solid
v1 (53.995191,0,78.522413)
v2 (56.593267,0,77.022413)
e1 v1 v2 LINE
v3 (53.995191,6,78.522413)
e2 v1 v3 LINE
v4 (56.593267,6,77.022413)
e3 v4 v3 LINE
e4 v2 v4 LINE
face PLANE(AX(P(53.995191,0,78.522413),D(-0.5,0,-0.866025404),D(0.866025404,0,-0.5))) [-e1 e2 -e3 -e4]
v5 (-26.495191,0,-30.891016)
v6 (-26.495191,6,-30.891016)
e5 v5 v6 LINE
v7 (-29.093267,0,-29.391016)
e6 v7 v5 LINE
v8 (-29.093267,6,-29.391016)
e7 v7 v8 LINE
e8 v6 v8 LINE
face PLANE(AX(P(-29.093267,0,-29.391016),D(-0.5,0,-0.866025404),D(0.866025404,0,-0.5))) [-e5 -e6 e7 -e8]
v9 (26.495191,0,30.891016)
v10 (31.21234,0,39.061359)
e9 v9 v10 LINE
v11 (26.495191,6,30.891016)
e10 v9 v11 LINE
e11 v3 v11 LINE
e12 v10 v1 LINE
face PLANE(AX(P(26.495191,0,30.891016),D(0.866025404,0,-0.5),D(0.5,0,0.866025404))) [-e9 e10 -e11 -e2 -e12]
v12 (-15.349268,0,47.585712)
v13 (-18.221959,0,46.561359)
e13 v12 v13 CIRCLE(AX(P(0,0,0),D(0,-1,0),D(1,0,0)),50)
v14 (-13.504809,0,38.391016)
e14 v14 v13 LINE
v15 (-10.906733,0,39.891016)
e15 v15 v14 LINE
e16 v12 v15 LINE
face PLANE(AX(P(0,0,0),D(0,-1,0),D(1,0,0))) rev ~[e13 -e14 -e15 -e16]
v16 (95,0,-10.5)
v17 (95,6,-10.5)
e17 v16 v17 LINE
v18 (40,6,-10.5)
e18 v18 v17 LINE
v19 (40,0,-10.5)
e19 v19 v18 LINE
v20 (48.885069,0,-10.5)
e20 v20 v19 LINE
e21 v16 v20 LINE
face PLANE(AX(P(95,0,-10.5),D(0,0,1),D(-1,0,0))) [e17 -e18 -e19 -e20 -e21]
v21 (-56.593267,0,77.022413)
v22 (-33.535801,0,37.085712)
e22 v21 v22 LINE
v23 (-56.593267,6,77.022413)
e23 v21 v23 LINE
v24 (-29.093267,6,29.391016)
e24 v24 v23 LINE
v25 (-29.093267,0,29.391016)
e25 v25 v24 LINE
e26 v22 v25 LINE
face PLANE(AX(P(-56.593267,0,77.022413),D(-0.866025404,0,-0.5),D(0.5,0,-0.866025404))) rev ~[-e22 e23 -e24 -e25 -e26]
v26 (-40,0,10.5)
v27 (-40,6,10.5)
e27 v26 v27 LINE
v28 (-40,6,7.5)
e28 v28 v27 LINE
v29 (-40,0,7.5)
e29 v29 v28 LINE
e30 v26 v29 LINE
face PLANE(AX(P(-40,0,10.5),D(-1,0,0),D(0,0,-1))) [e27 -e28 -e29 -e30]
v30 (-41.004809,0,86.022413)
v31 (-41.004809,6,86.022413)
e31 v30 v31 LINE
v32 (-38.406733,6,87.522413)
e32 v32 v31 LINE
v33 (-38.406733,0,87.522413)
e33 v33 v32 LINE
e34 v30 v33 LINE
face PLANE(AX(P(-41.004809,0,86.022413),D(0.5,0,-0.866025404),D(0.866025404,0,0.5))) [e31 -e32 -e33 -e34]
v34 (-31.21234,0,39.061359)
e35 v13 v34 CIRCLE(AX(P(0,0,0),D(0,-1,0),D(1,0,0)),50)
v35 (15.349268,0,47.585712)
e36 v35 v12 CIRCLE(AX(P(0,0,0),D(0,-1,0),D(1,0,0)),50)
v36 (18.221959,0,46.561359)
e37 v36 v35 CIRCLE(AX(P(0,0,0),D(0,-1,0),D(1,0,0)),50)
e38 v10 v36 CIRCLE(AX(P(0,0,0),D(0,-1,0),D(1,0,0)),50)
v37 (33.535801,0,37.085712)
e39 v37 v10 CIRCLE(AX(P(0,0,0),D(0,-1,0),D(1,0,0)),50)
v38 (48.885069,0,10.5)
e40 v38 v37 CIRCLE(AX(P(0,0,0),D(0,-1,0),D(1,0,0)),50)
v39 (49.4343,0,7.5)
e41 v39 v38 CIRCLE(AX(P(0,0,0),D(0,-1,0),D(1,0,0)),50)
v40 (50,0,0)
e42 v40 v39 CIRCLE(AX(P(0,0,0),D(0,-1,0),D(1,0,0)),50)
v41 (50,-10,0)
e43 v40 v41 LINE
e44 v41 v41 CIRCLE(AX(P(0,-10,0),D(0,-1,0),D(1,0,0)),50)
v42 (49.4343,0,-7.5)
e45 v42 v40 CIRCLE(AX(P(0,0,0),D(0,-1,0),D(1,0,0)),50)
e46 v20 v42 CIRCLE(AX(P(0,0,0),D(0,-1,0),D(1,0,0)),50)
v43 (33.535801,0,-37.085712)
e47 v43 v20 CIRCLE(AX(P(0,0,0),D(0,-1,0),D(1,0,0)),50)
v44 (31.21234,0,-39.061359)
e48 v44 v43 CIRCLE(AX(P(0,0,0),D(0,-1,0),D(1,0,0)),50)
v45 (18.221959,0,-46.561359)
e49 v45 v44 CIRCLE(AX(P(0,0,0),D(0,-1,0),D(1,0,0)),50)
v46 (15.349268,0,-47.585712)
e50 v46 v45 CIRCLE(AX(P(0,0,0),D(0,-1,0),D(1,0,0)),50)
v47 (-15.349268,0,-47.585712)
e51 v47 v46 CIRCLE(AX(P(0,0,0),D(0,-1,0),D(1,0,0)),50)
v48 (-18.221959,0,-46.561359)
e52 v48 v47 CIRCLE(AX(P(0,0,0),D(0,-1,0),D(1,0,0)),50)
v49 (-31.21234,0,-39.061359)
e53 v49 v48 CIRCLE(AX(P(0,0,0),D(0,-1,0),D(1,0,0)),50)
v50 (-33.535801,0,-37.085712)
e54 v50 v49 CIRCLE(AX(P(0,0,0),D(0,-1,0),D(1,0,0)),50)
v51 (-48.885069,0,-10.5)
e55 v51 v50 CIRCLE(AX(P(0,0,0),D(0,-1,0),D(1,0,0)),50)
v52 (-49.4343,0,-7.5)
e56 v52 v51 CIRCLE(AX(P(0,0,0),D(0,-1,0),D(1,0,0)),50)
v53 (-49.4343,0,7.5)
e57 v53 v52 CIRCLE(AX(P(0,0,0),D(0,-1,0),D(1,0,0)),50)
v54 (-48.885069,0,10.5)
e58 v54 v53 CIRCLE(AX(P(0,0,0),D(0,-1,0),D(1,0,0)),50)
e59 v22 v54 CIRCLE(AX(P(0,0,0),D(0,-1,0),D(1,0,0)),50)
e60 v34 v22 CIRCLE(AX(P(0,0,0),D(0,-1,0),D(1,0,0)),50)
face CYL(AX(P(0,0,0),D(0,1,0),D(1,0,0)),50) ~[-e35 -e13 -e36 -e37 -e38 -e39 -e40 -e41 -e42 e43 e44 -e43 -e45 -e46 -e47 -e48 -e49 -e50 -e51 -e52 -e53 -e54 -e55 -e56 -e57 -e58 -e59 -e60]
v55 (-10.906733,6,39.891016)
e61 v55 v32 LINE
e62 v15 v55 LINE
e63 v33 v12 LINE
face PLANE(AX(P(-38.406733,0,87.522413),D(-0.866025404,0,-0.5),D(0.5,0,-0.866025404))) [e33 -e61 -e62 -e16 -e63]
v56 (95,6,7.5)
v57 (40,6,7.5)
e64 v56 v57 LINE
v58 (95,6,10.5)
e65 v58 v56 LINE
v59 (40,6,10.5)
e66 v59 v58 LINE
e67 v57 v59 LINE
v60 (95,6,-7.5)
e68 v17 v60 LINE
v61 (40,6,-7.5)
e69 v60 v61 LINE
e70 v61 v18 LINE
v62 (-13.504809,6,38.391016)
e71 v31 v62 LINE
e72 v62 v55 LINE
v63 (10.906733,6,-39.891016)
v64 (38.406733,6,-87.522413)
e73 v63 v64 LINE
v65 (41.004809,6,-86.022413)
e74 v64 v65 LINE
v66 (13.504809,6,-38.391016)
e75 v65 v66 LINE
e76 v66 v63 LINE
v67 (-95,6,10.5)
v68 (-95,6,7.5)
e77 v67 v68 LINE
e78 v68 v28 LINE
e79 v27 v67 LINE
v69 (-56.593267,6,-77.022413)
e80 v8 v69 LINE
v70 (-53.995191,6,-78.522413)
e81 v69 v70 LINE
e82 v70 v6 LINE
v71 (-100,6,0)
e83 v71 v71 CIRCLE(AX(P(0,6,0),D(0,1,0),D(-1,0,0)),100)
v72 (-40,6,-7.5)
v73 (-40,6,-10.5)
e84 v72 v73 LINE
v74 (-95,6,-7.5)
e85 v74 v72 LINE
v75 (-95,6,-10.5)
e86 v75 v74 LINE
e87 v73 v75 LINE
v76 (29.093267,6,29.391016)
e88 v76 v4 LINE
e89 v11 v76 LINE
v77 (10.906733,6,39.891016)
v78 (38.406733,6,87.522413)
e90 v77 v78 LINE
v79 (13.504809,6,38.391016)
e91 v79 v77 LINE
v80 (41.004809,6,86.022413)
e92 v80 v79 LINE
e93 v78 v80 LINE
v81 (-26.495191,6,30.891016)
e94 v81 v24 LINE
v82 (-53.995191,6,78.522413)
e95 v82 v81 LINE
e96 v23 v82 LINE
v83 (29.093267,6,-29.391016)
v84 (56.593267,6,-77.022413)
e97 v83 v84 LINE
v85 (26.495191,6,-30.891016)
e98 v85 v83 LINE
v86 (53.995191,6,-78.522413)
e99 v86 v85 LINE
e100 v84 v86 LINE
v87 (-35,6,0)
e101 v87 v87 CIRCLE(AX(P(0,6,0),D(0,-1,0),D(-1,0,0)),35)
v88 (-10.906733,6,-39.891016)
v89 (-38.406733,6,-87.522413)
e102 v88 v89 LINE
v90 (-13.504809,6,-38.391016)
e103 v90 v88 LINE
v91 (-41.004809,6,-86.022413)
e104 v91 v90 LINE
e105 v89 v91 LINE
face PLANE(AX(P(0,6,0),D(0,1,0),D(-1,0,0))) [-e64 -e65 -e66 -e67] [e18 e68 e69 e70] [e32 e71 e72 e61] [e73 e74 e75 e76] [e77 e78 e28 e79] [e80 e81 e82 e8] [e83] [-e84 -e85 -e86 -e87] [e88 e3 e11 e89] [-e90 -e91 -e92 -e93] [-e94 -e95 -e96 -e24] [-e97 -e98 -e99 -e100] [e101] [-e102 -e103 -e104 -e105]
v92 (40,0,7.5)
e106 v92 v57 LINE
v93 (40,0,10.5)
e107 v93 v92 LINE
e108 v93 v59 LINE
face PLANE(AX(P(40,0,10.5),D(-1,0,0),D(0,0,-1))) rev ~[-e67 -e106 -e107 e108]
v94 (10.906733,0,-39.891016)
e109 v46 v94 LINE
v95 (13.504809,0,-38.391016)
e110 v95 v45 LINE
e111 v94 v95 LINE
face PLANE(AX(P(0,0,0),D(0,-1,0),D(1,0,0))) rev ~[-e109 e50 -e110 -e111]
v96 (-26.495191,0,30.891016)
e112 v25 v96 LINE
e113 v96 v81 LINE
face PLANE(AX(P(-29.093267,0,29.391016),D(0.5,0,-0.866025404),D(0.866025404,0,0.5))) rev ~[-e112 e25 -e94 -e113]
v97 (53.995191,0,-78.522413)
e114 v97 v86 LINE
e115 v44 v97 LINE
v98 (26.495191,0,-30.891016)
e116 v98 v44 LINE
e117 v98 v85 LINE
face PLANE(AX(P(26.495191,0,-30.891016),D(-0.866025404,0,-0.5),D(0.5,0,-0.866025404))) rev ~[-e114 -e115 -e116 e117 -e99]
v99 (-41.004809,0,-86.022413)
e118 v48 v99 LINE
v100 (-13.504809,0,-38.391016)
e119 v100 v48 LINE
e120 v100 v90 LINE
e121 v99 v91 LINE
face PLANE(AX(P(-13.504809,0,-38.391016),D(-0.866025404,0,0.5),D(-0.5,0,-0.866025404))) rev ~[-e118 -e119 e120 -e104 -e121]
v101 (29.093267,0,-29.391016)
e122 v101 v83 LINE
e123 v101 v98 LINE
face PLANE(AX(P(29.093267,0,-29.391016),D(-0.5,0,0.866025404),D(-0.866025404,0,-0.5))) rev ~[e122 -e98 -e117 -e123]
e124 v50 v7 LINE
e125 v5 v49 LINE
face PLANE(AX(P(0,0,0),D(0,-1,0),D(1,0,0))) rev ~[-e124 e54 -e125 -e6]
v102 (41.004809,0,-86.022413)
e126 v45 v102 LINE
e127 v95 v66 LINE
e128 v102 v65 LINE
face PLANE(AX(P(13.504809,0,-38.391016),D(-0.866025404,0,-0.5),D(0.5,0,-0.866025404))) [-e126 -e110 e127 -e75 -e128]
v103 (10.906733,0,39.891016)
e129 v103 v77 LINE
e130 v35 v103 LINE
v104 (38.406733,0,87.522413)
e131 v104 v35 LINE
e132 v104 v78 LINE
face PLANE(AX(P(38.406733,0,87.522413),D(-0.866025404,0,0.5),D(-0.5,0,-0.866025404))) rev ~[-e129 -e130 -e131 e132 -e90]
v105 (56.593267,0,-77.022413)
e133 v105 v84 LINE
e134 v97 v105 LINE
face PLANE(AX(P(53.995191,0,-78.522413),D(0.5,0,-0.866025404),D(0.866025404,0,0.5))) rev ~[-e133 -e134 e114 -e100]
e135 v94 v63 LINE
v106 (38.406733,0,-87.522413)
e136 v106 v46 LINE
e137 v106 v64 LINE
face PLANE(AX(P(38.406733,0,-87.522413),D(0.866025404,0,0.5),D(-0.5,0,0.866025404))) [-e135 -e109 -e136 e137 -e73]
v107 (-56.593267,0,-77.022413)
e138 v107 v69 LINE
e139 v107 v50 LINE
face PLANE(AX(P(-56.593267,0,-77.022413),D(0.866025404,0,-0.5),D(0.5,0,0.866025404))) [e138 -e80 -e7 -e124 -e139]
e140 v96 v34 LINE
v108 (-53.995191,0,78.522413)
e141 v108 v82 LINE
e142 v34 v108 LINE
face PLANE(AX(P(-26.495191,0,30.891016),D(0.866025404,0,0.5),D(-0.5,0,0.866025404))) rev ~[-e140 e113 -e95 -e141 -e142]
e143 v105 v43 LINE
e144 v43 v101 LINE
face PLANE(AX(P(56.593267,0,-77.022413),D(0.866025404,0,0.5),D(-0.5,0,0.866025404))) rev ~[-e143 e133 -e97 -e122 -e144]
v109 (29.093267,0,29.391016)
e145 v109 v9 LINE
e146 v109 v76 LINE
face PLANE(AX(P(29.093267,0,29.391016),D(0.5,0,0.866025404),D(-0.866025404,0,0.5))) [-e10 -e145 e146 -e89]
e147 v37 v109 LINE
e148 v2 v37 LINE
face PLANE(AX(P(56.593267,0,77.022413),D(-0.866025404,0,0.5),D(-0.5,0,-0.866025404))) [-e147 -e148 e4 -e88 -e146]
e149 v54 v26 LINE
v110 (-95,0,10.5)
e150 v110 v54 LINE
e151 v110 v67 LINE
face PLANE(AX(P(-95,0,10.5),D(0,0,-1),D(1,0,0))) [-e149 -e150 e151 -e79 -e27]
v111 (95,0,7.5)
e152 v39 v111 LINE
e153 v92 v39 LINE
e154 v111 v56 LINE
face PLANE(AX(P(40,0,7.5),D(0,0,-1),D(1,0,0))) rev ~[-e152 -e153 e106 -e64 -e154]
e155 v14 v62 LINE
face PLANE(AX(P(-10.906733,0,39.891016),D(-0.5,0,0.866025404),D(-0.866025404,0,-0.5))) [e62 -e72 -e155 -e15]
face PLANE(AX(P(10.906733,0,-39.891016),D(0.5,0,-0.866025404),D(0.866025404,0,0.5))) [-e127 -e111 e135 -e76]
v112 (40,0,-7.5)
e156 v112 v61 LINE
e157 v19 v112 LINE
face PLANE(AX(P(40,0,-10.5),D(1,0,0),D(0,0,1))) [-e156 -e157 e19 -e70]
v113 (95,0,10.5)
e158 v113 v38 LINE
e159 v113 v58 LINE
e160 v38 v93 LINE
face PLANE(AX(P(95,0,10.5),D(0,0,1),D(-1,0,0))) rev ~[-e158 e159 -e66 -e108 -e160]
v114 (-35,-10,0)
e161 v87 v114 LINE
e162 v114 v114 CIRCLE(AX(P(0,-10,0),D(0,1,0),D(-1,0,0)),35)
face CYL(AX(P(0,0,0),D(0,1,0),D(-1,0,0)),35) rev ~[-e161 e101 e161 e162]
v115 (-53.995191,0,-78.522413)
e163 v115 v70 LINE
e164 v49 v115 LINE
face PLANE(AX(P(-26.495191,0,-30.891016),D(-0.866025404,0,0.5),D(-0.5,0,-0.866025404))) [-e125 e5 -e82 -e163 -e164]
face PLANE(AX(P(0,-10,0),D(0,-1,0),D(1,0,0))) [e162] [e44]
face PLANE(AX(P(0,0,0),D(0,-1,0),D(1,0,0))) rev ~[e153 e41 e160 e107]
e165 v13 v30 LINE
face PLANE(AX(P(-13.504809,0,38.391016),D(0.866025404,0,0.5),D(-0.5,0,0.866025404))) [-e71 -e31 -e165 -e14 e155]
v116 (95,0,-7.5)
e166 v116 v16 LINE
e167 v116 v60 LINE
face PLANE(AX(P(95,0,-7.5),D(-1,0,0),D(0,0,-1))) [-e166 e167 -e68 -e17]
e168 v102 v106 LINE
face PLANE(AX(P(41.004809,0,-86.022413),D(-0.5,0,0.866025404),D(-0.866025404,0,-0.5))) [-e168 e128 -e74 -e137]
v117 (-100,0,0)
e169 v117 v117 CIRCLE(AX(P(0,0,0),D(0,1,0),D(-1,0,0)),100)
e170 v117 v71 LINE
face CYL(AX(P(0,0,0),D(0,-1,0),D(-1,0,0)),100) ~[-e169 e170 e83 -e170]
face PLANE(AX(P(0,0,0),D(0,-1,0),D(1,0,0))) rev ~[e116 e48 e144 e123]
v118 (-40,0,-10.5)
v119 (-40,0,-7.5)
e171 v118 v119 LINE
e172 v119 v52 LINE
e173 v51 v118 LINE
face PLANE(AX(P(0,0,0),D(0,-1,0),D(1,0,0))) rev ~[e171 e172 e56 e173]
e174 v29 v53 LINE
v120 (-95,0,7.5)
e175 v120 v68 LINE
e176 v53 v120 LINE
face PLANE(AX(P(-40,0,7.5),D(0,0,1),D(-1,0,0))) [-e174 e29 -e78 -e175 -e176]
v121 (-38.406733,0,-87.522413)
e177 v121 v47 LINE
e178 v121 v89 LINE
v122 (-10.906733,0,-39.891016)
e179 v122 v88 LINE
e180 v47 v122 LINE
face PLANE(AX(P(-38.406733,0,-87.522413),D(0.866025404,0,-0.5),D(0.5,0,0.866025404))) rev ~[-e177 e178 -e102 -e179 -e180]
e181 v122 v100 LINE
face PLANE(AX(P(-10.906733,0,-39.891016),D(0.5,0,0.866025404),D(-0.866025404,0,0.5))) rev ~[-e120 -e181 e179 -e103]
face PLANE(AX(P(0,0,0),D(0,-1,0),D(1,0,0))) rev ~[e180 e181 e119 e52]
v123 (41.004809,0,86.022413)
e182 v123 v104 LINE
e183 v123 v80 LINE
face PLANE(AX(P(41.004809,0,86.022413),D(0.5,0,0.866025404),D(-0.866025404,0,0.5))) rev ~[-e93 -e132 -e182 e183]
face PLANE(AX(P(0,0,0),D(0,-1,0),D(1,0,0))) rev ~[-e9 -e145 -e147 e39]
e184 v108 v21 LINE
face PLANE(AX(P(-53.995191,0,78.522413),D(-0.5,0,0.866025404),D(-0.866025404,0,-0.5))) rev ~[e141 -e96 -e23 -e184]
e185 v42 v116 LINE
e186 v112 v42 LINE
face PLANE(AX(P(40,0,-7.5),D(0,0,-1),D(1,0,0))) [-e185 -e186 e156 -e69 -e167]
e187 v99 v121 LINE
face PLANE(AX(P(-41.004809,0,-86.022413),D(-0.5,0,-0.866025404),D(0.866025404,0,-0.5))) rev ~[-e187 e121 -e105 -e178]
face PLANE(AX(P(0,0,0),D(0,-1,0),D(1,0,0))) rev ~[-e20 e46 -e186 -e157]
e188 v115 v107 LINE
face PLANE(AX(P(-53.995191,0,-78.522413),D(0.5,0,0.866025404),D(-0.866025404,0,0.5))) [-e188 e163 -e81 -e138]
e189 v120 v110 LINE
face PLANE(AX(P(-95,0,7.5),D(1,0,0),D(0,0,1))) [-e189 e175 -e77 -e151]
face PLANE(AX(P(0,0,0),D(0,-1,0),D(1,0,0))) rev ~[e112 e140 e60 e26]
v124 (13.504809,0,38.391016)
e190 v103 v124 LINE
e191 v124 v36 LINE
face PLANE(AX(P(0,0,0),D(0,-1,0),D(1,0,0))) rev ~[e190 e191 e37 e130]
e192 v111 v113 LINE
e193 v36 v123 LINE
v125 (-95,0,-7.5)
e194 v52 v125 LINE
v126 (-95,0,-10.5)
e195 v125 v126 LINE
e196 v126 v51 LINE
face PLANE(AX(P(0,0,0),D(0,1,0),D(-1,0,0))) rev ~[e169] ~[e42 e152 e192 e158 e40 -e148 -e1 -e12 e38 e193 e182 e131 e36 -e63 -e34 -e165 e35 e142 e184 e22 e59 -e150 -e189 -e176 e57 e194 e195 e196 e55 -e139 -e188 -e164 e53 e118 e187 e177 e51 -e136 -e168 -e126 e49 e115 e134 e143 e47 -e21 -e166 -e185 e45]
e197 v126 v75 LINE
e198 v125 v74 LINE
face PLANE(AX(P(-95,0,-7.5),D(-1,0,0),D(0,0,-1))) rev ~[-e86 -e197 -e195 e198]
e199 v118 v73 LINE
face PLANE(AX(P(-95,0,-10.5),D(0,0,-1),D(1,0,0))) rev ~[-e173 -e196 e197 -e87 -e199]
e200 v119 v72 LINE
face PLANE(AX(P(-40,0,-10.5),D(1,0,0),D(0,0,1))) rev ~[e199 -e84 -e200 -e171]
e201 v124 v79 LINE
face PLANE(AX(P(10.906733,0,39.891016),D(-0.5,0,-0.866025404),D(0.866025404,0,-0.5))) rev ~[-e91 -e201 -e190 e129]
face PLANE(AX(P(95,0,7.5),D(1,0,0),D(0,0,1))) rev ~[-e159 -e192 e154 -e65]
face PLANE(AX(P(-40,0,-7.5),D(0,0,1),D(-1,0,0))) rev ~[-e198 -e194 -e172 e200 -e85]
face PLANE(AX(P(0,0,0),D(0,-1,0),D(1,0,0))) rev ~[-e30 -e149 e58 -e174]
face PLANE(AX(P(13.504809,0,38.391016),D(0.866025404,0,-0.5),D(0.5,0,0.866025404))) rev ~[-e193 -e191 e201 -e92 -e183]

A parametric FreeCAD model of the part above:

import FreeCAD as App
import Part
import Sketcher
from FreeCAD import Vector

doc = App.newDocument("Part")
body = doc.addObject("PartDesign::Body", "Body")

sketch1 = doc.addObject("Sketcher::SketchObject", "Sketch")
body.addObject(sketch1)
sketch1.AttachmentSupport = (doc.XZ_Plane, [""])
sketch1.MapMode = "FlatFace"
sketch1.addGeometry(Part.Circle(Vector(0, 0, 0), Vector(0, 0, 1), 100), False)
sketch1.addConstraint([
    Sketcher.Constraint("Coincident", 0, 3, -1, 1),
    Sketcher.Constraint("Diameter", 0, 200.0),
])
pad1 = doc.addObject("PartDesign::Pad", "Pad")
body.addObject(pad1)
pad1.Profile = sketch1
pad1.Length = 6
pad1.Reversed = True

sketch2 = doc.addObject("Sketcher::SketchObject", "Sketch001")
body.addObject(sketch2)
sketch2.AttachmentSupport = (doc.XZ_Plane, [""])
sketch2.MapMode = "FlatFace"
sketch2.addGeometry([
    Part.LineSegment(Vector(-95, 7.5, 0), Vector(-95, 10.5, 0)),
    Part.LineSegment(Vector(-95, 10.5, 0), Vector(-40, 10.5, 0)),
    Part.LineSegment(Vector(-40, 10.5, 0), Vector(-40, 7.5, 0)),
    Part.LineSegment(Vector(-40, 7.5, 0), Vector(-95, 7.5, 0)),
    Part.LineSegment(Vector(-40, -10.5, 0), Vector(-95, -10.5, 0)),
    Part.LineSegment(Vector(-95, -10.5, 0), Vector(-95, -7.5, 0)),
    Part.LineSegment(Vector(-95, -7.5, 0), Vector(-40, -7.5, 0)),
    Part.LineSegment(Vector(-40, -7.5, 0), Vector(-40, -10.5, 0)),
], False)
sketch2.addConstraint([
    Sketcher.Constraint("Coincident", 0, 2, 1, 1),
    Sketcher.Constraint("Coincident", 1, 2, 2, 1),
    Sketcher.Constraint("Coincident", 2, 2, 3, 1),
    Sketcher.Constraint("Coincident", 3, 2, 0, 1),
    Sketcher.Constraint("Coincident", 4, 2, 5, 1),
    Sketcher.Constraint("Coincident", 5, 2, 6, 1),
    Sketcher.Constraint("Coincident", 6, 2, 7, 1),
    Sketcher.Constraint("Coincident", 7, 2, 4, 1),
    Sketcher.Constraint("Vertical", 0),
    Sketcher.Constraint("Horizontal", 1),
    Sketcher.Constraint("Vertical", 2),
    Sketcher.Constraint("Horizontal", 3),
    Sketcher.Constraint("Horizontal", 4),
    Sketcher.Constraint("Vertical", 5),
    Sketcher.Constraint("Horizontal", 6),
    Sketcher.Constraint("Vertical", 7),
    Sketcher.Constraint("Symmetric", 0, 2, 4, 2, -1),
    Sketcher.Constraint("Symmetric", 2, 2, 6, 2, -1),
    Sketcher.Constraint("DistanceX", 1, 1, 1, 2, 55.0),
    Sketcher.Constraint("DistanceY", 0, 1, 0, 2, 3.0),
    Sketcher.Constraint("DistanceX", 1, 2, -1, 1, 40.0),
    Sketcher.Constraint("DistanceY", 5, 2, 3, 2, 15.0),
])
pocket1 = doc.addObject("PartDesign::Pocket", "Pocket")
body.addObject(pocket1)
pocket1.Profile = sketch2
pocket1.Type = "ThroughAll"
doc.recompute()

polarpattern = doc.addObject("PartDesign::PolarPattern", "PolarPattern")
body.addObject(polarpattern)
polarpattern.Originals = [pocket1]
polarpattern.Axis = (doc.Y_Axis, [""])
polarpattern.Angle = 360
polarpattern.Occurrences = 6
body.Tip = polarpattern

sketch3 = doc.addObject("Sketcher::SketchObject", "Sketch002")
body.addObject(sketch3)
sketch3.AttachmentSupport = (doc.XZ_Plane, [""])
sketch3.MapMode = "FlatFace"
sketch3.addGeometry(Part.Circle(Vector(0, 0, 0), Vector(0, 0, 1), 35), False)
sketch3.addConstraint([
    Sketcher.Constraint("Coincident", 0, 3, -1, 1),
    Sketcher.Constraint("Diameter", 0, 70.0),
])
pocket2 = doc.addObject("PartDesign::Pocket", "Pocket001")
body.addObject(pocket2)
pocket2.Profile = sketch3
pocket2.Type = "ThroughAll"

sketch4 = doc.addObject("Sketcher::SketchObject", "Sketch003")
body.addObject(sketch4)
sketch4.AttachmentSupport = (doc.XZ_Plane, [""])
sketch4.MapMode = "FlatFace"
sketch4.addGeometry(Part.Circle(Vector(0, 0, 0), Vector(0, 0, 1), 50), False)
sketch4.addConstraint([
    Sketcher.Constraint("Coincident", 0, 3, -1, 1),
    Sketcher.Constraint("Diameter", 0, 100.0),
])
pad2 = doc.addObject("PartDesign::Pad", "Pad001")
body.addObject(pad2)
pad2.Profile = sketch4
pad2.Length = 10

sketch5 = doc.addObject("Sketcher::SketchObject", "Sketch004")
body.addObject(sketch5)
sketch5.AttachmentSupport = (doc.XZ_Plane, [""])
sketch5.MapMode = "FlatFace"
sketch5.addGeometry(Part.Circle(Vector(0, 0, 0), Vector(0, 0, 1), 35), False)
sketch5.addConstraint([
    Sketcher.Constraint("Coincident", 0, 3, -1, 1),
    Sketcher.Constraint("Diameter", 0, 70.0),
])
pocket3 = doc.addObject("PartDesign::Pocket", "Pocket002")
body.addObject(pocket3)
pocket3.Profile = sketch5
pocket3.Type = "ThroughAll"
pocket3.Reversed = True

doc.recompute()
